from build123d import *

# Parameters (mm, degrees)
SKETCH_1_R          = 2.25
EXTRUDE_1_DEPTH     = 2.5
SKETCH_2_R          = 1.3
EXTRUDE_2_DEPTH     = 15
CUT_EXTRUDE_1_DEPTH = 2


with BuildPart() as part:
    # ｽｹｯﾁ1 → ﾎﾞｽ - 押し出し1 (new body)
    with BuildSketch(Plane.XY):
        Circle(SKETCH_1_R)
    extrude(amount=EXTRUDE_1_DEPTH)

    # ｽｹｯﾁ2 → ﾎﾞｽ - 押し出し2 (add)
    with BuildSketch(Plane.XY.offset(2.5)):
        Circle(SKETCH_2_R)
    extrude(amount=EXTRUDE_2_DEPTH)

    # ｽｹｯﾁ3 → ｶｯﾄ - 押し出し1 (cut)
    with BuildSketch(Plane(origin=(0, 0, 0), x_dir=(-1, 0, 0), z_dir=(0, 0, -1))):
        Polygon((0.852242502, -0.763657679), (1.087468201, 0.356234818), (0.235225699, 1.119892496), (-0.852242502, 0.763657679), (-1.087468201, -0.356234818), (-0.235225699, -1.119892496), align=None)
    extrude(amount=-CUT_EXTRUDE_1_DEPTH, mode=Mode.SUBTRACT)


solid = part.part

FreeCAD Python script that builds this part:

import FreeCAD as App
import Part
import Sketcher

doc = App.newDocument("Part")
params = doc.addObject("Spreadsheet::Sheet", "Params")
for row, (alias, value) in enumerate([
    ("sketch1_diameter", "4.5 mm"),
    ("pad1_length", "2.5 mm"),
    ("sketch2_diameter", "2.6 mm"),
    ("pad2_length", "15 mm"),
    ("pocket1_length", "2 mm"),
], start=1):
    params.set(f"A{row}", alias)
    params.set(f"B{row}", "=" + value)
    params.setAlias(f"B{row}", alias)

body = doc.addObject("PartDesign::Body", "Body")

# Sketch on XY plane
sketch1 = body.newObject("Sketcher::SketchObject", "Sketch")
sketch1.AttachmentSupport = (doc.getObject("XY_Plane"), [""])
sketch1.MapMode = "FlatFace"
sketch1.addGeometry(Part.Circle(App.Vector(0, 0, 0), App.Vector(0, 0, 1), 2.2), False)
sketch1.addConstraint([
    Sketcher.Constraint("Coincident", 0, 3, -1, 1),
    Sketcher.Constraint("Diameter", 0, 4.5),
])
sketch1.setExpression("Constraints[1]", "Params.sketch1_diameter")
pad1 = body.newObject("PartDesign::Pad", "Pad")
pad1.Profile = sketch1
pad1.setExpression("Length", "Params.pad1_length")

# Sketch on XY plane
sketch2 = body.newObject("Sketcher::SketchObject", "Sketch001")
sketch2.AttachmentSupport = (doc.getObject("XY_Plane"), [""])
sketch2.MapMode = "FlatFace"
sketch2.AttachmentOffset = App.Placement(App.Vector(0, 0, 2.5), App.Rotation())
sketch2.addGeometry(Part.Circle(App.Vector(0, 0, 0), App.Vector(0, 0, 1), 1.3), False)
sketch2.addConstraint([
    Sketcher.Constraint("Coincident", 0, 3, -1, 1),
    Sketcher.Constraint("Diameter", 0, 2.6),
])
sketch2.setExpression("Constraints[1]", "Params.sketch2_diameter")
pad2 = body.newObject("PartDesign::Pad", "Pad001")
pad2.Profile = sketch2
pad2.setExpression("Length", "Params.pad2_length")

# Sketch on XY plane
sketch3 = body.newObject("Sketcher::SketchObject", "Sketch002")
sketch3.AttachmentSupport = (doc.getObject("XY_Plane"), [""])
sketch3.MapMode = "FlatFace"
sketch3.addGeometry([
    Part.LineSegment(App.Vector(-0.9, -0.8, 0), App.Vector(-1.1, 0.4, 0)),  # 0
    Part.LineSegment(App.Vector(-1.1, 0.4, 0), App.Vector(-0.2, 1.1, 0)),  # 1
    Part.LineSegment(App.Vector(-0.2, 1.1, 0), App.Vector(0.9, 0.8, 0)),  # 2
    Part.LineSegment(App.Vector(0.9, 0.8, 0), App.Vector(1.1, -0.4, 0)),  # 3
    Part.LineSegment(App.Vector(1.1, -0.4, 0), App.Vector(0.2, -1.1, 0)),  # 4
    Part.LineSegment(App.Vector(0.2, -1.1, 0), App.Vector(-0.9, -0.8, 0)),  # 5
], False)
sketch3.addConstraint([
    Sketcher.Constraint("Coincident", 0, 2, 1, 1),
    Sketcher.Constraint("Coincident", 1, 2, 2, 1),
    Sketcher.Constraint("Coincident", 2, 2, 3, 1),
    Sketcher.Constraint("Coincident", 3, 2, 4, 1),
    Sketcher.Constraint("Coincident", 4, 2, 5, 1),
    Sketcher.Constraint("Coincident", 5, 2, 0, 1),
    Sketcher.Constraint("Symmetric", 0, 2, 3, 2, -1, 1),
    Sketcher.Constraint("Symmetric", 1, 2, 4, 2, -1, 1),
    Sketcher.Constraint("Symmetric", 2, 2, 5, 2, -1, 1),
    Sketcher.Constraint("Equal", 0, 1),
    Sketcher.Constraint("Equal", 1, 2),
    Sketcher.Constraint("Distance", 0, 1.14433),
    Sketcher.Constraint("DistanceX", 0, 2, -1, 1, 1.087468),
    Sketcher.Constraint("DistanceX", 1, 2, 2, 2, 1.087468),
    Sketcher.Constraint("DistanceX", 0, 2, 2, 2, 1.939711),
])
pocket1 = body.newObject("PartDesign::Pocket", "Pocket")
pocket1.Profile = sketch3
pocket1.setExpression("Length", "Params.pocket1_length")
pocket1.Reversed = True

doc.recompute()
